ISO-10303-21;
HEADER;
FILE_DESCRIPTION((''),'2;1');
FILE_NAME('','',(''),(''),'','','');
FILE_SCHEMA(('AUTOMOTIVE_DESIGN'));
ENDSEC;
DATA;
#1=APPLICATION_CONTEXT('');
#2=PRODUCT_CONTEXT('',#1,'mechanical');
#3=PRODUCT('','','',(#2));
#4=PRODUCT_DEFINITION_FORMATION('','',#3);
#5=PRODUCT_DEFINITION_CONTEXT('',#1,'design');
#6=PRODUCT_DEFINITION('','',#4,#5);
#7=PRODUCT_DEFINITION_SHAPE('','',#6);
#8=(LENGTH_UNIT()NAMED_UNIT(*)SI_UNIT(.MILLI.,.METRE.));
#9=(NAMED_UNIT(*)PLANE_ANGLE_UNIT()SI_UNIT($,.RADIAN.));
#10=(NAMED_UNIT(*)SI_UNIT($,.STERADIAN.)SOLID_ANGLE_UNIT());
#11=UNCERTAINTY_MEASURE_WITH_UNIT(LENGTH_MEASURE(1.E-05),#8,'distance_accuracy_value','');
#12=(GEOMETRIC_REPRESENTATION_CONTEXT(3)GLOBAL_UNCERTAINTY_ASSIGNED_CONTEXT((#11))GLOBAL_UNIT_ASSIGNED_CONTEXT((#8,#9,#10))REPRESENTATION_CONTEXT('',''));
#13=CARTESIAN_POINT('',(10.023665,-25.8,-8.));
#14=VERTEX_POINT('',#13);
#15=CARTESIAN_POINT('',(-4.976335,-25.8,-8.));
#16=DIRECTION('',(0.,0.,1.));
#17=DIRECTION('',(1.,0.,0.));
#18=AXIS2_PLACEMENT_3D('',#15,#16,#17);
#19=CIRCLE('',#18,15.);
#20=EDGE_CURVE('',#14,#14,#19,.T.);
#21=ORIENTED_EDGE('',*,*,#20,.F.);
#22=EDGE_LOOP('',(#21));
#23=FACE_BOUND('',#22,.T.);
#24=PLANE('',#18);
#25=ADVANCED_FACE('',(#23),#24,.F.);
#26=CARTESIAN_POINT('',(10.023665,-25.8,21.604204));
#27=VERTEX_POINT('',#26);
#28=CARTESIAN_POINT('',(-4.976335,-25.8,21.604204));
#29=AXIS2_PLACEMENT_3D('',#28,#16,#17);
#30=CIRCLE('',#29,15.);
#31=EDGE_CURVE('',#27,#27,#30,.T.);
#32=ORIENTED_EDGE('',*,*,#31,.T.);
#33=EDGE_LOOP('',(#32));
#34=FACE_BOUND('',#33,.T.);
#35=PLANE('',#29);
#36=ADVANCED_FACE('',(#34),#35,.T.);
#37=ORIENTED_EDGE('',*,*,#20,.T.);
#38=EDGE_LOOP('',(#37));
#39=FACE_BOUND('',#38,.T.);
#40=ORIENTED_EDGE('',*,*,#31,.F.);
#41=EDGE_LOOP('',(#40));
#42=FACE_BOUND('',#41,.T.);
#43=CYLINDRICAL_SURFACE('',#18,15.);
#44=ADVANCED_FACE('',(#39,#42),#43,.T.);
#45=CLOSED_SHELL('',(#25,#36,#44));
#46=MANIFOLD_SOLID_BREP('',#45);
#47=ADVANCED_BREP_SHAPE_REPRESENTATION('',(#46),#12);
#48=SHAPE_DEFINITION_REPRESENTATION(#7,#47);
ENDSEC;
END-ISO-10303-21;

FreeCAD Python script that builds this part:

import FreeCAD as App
import Part
import Sketcher

doc = App.newDocument("Part")
body = doc.addObject("PartDesign::Body", "Body")

sketch1 = body.newObject("Sketcher::SketchObject", "Sketch")
sketch1.AttachmentSupport = (doc.getObject("XY_Plane"), [""])
sketch1.MapMode = "FlatFace"
sketch1.addGeometry(Part.Circle(App.Vector(-5, -26, 0), App.Vector(0, 0, 1), 15), False)
sketch1.addConstraint([
    Sketcher.Constraint("Diameter", 0, 30.0),
    Sketcher.Constraint("DistanceY", 0, 3, -1, 1, 25.8),
    Sketcher.Constraint("DistanceX", 0, 3, -1, 1, 4.976335),
])
pad1 = body.newObject("PartDesign::Pad", "Pad")
pad1.Profile = sketch1
pad1.Type = "TwoLengths"
pad1.Length = 21.604204
pad1.Length2 = 8

doc.recompute()
